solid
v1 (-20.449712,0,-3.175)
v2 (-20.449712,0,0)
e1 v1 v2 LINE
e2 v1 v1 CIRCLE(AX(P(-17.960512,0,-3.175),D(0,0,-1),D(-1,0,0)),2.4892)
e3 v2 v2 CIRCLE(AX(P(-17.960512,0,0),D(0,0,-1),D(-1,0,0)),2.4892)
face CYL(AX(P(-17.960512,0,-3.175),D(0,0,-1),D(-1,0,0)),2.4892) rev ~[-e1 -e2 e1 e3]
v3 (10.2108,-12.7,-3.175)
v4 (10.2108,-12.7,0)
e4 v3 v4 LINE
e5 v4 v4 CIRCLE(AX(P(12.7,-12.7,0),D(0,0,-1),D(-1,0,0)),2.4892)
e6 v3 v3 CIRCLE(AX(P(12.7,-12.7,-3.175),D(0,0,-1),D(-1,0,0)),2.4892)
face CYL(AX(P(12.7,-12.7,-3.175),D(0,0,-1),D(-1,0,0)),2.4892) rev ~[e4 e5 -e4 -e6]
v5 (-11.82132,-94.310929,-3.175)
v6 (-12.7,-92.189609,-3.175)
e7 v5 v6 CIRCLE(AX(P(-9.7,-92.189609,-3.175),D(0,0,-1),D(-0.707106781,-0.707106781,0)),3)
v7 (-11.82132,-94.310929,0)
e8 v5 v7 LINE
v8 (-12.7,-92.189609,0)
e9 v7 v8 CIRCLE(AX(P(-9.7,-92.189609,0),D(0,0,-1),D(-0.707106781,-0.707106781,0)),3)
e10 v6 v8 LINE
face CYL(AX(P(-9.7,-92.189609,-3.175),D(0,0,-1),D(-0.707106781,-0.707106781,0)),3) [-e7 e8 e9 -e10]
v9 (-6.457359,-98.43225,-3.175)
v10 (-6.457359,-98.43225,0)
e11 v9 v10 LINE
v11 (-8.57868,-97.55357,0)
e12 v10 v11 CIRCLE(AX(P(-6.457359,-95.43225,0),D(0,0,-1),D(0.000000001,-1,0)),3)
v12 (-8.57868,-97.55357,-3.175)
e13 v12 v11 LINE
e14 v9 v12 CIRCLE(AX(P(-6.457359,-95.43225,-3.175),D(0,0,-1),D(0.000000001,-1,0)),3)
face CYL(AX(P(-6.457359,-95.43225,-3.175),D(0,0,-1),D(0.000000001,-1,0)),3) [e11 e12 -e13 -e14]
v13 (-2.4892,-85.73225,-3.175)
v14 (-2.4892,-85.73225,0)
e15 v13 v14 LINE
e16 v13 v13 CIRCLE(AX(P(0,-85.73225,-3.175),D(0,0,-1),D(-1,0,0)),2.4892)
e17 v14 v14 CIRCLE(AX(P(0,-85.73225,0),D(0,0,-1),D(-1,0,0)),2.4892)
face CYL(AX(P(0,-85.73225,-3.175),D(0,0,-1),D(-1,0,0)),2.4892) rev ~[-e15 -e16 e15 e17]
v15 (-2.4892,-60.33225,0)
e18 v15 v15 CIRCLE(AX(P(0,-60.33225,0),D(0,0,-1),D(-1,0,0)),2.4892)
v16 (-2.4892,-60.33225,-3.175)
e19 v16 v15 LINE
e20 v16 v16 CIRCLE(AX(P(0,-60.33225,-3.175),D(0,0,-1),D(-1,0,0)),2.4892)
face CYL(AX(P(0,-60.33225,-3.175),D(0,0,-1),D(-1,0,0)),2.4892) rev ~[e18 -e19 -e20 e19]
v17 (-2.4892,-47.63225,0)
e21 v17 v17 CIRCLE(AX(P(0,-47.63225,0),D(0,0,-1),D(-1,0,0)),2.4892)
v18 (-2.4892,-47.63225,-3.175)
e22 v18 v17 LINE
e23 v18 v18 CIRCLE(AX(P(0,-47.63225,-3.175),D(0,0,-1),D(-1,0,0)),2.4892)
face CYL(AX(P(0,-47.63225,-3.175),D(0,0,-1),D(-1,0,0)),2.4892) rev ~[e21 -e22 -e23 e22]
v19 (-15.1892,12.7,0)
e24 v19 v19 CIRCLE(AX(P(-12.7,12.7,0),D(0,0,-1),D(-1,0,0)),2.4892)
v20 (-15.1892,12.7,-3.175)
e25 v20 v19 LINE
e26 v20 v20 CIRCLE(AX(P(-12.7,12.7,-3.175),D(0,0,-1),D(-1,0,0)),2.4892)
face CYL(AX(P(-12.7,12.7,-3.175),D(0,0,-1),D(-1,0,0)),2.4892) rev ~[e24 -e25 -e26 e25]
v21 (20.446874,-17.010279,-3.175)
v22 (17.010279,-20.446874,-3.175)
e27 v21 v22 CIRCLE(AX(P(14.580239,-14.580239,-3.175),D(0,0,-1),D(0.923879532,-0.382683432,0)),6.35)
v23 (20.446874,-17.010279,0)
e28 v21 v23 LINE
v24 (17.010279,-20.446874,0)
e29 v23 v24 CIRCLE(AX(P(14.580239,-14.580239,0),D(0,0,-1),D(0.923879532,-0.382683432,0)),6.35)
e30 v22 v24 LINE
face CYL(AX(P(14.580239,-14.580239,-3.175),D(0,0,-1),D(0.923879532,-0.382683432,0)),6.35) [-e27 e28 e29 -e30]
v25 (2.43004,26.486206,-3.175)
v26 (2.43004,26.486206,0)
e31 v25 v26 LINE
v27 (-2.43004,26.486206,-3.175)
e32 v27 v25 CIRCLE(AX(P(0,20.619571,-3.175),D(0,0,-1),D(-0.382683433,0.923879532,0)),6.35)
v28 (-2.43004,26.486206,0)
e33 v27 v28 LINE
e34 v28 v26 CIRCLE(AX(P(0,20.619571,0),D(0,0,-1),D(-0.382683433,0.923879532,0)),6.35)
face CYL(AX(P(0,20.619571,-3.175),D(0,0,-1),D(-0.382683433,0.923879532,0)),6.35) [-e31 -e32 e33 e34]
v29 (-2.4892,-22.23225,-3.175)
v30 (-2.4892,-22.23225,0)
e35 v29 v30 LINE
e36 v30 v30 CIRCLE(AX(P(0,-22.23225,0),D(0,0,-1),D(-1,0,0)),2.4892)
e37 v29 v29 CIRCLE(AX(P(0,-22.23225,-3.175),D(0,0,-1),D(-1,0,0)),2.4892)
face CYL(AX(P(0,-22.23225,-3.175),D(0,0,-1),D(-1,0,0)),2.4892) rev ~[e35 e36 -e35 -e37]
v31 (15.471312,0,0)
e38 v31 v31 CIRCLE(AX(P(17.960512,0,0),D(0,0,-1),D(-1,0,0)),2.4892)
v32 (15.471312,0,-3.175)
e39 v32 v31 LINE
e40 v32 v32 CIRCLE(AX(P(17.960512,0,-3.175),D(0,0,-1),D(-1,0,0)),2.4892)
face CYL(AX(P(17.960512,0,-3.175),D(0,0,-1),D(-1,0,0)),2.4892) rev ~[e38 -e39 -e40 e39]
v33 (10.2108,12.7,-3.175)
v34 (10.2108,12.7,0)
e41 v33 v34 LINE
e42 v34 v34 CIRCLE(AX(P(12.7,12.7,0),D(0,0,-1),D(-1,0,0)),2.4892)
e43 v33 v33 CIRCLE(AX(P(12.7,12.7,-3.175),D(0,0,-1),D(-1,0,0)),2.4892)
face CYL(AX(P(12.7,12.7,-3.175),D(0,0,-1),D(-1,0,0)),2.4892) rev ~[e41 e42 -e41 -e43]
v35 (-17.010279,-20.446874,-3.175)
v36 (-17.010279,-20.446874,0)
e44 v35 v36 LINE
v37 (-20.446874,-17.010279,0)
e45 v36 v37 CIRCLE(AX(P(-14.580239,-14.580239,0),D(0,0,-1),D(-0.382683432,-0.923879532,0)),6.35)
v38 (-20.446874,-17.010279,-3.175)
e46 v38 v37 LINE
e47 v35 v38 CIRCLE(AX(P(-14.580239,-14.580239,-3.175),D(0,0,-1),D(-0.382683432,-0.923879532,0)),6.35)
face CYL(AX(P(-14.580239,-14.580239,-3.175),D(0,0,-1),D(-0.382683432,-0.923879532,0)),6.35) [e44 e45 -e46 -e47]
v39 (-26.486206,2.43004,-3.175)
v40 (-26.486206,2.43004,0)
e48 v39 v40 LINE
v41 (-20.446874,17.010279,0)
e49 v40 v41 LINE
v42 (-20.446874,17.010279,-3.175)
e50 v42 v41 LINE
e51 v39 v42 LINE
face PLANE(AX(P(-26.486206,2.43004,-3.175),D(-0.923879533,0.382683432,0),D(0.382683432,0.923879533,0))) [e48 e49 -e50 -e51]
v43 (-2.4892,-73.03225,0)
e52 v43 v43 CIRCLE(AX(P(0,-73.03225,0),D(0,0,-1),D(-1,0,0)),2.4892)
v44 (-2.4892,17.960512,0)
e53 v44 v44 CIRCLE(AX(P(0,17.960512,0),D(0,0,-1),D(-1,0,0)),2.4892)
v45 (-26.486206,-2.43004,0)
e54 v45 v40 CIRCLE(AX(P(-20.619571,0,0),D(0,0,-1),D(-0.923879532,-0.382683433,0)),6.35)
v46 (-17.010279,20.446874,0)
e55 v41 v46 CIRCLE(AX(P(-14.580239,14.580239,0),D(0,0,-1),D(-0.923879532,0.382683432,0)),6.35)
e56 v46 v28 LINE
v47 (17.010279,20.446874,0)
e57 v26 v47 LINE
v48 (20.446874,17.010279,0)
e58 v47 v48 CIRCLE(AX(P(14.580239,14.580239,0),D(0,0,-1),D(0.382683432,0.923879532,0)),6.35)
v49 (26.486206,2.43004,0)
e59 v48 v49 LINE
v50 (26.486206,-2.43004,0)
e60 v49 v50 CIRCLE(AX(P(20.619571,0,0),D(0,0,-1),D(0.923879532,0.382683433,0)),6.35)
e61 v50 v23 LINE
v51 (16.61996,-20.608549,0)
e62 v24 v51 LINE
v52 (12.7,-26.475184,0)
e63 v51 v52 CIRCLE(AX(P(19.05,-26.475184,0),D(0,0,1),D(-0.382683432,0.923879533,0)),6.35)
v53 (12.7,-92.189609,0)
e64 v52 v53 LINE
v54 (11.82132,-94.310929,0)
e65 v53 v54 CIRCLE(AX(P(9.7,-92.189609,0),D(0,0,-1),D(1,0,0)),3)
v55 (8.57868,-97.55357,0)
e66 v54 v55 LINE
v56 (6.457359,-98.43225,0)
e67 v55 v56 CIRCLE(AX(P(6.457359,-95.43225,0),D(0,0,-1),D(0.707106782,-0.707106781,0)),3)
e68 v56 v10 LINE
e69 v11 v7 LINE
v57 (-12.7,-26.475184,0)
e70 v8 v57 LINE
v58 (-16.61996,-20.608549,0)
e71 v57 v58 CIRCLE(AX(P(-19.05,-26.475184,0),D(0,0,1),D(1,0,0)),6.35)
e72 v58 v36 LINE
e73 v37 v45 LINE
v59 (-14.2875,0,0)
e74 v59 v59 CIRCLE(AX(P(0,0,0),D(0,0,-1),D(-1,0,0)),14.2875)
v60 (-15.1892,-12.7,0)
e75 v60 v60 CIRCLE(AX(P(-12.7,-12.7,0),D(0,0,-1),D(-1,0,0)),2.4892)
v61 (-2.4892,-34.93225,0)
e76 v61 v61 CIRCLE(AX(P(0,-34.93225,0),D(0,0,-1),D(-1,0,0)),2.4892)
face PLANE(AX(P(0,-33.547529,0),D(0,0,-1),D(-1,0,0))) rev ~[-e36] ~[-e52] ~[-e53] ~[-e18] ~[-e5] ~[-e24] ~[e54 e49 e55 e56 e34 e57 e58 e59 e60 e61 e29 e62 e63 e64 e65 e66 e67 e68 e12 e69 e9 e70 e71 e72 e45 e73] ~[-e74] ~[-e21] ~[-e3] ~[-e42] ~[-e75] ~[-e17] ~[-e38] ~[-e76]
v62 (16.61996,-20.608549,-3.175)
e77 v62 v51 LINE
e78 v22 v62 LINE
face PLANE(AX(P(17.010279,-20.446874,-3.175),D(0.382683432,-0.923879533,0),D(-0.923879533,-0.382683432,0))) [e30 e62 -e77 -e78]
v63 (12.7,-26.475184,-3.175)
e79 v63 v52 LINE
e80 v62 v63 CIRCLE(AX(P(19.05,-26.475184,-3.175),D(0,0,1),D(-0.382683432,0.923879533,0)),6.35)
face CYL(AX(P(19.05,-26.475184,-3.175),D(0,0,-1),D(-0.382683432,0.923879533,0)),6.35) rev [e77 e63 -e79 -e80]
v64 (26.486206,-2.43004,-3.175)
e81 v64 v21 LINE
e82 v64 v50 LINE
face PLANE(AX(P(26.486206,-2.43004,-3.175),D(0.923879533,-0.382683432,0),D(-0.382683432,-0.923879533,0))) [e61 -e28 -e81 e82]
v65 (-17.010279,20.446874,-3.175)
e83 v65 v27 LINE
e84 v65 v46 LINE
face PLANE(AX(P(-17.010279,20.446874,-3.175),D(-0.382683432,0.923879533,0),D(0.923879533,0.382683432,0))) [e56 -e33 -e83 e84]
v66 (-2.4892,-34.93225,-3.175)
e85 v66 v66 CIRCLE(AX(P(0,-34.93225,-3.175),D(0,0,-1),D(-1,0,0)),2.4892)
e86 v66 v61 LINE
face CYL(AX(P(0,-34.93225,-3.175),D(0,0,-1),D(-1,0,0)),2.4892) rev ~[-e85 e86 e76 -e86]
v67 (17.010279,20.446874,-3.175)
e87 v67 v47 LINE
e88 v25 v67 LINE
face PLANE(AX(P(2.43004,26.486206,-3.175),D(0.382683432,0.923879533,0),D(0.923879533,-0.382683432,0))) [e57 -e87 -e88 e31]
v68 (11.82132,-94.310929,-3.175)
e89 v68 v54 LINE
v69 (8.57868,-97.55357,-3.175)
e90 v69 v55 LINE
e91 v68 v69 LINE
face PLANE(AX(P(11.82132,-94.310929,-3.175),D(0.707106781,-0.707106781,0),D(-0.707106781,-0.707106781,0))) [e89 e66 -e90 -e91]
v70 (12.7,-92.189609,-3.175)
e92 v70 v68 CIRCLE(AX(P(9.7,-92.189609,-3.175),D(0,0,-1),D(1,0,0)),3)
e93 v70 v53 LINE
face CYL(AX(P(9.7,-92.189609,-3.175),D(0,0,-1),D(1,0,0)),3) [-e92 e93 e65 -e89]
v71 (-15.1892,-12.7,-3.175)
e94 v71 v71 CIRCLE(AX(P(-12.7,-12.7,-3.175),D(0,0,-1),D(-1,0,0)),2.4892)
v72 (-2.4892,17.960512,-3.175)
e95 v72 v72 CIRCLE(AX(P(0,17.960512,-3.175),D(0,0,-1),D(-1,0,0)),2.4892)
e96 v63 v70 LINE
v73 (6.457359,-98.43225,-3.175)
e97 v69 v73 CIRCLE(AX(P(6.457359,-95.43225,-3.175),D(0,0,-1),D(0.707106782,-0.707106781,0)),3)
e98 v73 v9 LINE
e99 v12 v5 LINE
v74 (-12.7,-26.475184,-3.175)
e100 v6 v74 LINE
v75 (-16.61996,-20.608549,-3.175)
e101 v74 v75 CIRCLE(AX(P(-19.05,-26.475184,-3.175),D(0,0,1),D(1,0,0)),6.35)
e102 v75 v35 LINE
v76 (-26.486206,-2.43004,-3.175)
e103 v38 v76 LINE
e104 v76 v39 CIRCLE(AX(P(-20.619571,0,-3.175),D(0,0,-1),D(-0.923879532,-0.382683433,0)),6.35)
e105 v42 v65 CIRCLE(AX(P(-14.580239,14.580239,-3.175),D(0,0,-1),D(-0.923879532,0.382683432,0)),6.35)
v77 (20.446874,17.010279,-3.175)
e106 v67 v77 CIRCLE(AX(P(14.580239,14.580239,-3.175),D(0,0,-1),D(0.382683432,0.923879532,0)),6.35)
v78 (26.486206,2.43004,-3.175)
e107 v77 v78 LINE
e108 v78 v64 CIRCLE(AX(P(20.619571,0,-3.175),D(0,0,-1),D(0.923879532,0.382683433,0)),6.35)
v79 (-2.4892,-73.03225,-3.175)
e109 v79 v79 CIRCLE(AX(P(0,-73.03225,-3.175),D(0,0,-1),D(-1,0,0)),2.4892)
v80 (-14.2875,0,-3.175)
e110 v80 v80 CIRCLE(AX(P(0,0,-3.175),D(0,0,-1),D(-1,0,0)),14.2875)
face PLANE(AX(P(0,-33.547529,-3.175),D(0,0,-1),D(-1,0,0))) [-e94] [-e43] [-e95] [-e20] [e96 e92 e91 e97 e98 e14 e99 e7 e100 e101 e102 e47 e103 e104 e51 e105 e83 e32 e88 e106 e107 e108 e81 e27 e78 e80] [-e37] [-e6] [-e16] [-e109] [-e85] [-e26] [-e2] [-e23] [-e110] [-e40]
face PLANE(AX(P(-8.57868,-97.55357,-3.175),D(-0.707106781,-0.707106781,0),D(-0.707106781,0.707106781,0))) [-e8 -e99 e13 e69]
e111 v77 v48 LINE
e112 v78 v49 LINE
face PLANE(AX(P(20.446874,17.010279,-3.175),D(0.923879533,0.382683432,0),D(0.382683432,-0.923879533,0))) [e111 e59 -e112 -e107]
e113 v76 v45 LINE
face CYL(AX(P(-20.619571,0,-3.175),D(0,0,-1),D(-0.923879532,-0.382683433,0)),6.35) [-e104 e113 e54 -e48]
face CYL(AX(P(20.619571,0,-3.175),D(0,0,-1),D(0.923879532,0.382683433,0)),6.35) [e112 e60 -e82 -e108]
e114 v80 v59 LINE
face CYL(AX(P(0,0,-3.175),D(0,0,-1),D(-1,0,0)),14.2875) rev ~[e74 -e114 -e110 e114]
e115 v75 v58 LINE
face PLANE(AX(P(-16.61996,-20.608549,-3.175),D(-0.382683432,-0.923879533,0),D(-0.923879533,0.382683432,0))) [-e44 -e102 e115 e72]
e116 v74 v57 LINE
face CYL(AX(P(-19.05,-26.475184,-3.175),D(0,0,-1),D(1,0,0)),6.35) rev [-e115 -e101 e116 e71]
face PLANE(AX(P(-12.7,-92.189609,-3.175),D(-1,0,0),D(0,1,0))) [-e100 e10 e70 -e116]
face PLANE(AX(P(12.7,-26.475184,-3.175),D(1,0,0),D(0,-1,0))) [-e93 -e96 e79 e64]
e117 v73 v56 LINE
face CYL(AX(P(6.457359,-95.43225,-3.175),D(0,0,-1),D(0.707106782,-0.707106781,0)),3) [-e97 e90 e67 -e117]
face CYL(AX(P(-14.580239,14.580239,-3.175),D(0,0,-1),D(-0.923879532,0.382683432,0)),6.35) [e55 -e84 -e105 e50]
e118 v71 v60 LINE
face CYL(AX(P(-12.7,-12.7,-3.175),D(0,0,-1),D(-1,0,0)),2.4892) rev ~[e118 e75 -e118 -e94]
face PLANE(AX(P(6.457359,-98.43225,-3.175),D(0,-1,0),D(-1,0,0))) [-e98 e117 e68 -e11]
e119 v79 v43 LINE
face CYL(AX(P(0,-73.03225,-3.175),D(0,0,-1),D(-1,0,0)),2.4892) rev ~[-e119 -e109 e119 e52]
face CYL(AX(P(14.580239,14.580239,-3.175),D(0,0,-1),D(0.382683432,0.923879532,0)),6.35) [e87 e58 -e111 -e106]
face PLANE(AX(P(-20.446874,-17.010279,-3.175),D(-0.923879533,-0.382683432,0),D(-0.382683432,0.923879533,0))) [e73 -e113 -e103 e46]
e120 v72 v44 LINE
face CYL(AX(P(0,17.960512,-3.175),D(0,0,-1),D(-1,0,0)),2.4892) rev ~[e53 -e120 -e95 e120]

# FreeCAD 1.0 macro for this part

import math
import FreeCAD as App
import Part
import Sketcher
from FreeCAD import Vector
Q = App.Units.Quantity

doc = App.newDocument("Part")
params = doc.addObject("Spreadsheet::Sheet", "Params")
for row, (alias, value) in enumerate([
    ("sketch1_radius", "0.25 in"),
    ("sketch1_diameter", "0.196 in"),
    ("sketch1_diameter2", "1.125 in"),
    ("pad1_length", "0.125 in"),
], start=1):
    params.set(f"A{row}", alias)
    params.set(f"B{row}", "=" + value)
    params.setAlias(f"B{row}", alias)

body = doc.addObject("PartDesign::Body", "Body")

sketch1 = body.newObject("Sketcher::SketchObject", "Sketch")
sketch1.AttachmentSupport = (doc.getObject("XY_Plane"), [""])
sketch1.MapMode = "FlatFace"
sketch1.AttachmentOffset = App.Placement(Vector(0, 0, -0.125 * 25.4), App.Rotation())
sketch1.addGeometry([
    Part.LineSegment(Vector(-8.57868, -97.55357, 0), Vector(-11.82132, -94.310929, 0)),
    Part.ArcOfCircle(Part.Circle(Vector(-9.7, -92.189609, 0), Vector(0, 0, 1), 3), math.radians(180), math.radians(225)),
    Part.LineSegment(Vector(-12.7, -92.189609, 0), Vector(-12.7, -26.475184, 0)),
    Part.ArcOfCircle(Part.Circle(Vector(-19.05, -26.475184, 0), Vector(0, 0, 1), 6.35), math.radians(0), math.radians(67.5)),
    Part.LineSegment(Vector(-16.61996, -20.608549, 0), Vector(-17.010279, -20.446874, 0)),
    Part.ArcOfCircle(Part.Circle(Vector(-14.580239, -14.580239, 0), Vector(0, 0, 1), 6.35), math.radians(-157.5), math.radians(-112.5)),
    Part.LineSegment(Vector(-20.446874, -17.010279, 0), Vector(-26.486206, -2.43004, 0)),
    Part.ArcOfCircle(Part.Circle(Vector(-20.619571, 0, 0), Vector(0, 0, 1), 6.35), math.radians(157.5), math.radians(202.5)),
    Part.LineSegment(Vector(-26.486206, 2.43004, 0), Vector(-20.446874, 17.010279, 0)),
    Part.ArcOfCircle(Part.Circle(Vector(-14.580239, 14.580239, 0), Vector(0, 0, 1), 6.35), math.radians(112.5), math.radians(157.5)),
    Part.LineSegment(Vector(-17.010279, 20.446874, 0), Vector(-2.43004, 26.486206, 0)),
    Part.ArcOfCircle(Part.Circle(Vector(0, 20.619571, 0), Vector(0, 0, 1), 6.35), math.radians(67.5), math.radians(112.5)),
    Part.LineSegment(Vector(2.43004, 26.486206, 0), Vector(17.010279, 20.446874, 0)),
    Part.ArcOfCircle(Part.Circle(Vector(14.580239, 14.580239, 0), Vector(0, 0, 1), 6.35), math.radians(22.5), math.radians(67.5)),
    Part.LineSegment(Vector(20.446874, 17.010279, 0), Vector(26.486206, 2.43004, 0)),
    Part.ArcOfCircle(Part.Circle(Vector(20.619571, 0, 0), Vector(0, 0, 1), 6.35), math.radians(-22.5), math.radians(22.5)),
    Part.LineSegment(Vector(26.486206, -2.43004, 0), Vector(20.446874, -17.010279, 0)),
    Part.ArcOfCircle(Part.Circle(Vector(14.580239, -14.580239, 0), Vector(0, 0, 1), 6.35), math.radians(-67.5), math.radians(-22.5)),
    Part.LineSegment(Vector(17.010279, -20.446874, 0), Vector(16.61996, -20.608549, 0)),
    Part.ArcOfCircle(Part.Circle(Vector(19.05, -26.475184, 0), Vector(0, 0, 1), 6.35), math.radians(112.5), math.radians(180)),
    Part.LineSegment(Vector(12.7, -26.475184, 0), Vector(12.7, -92.189609, 0)),
    Part.ArcOfCircle(Part.Circle(Vector(9.7, -92.189609, 0), Vector(0, 0, 1), 3), math.radians(-45), math.radians(0)),
    Part.LineSegment(Vector(11.82132, -94.310929, 0), Vector(8.57868, -97.55357, 0)),
    Part.ArcOfCircle(Part.Circle(Vector(6.457359, -95.43225, 0), Vector(0, 0, 1), 3), math.radians(-90), math.radians(-45)),
    Part.LineSegment(Vector(6.457359, -98.43225, 0), Vector(-6.457359, -98.43225, 0)),
    Part.ArcOfCircle(Part.Circle(Vector(-6.457359, -95.43225, 0), Vector(0, 0, 1), 3), math.radians(-135), math.radians(-90)),
    Part.Circle(Vector(0, -85.73225, 0), Vector(0, 0, 1), 2.4892),
    Part.Circle(Vector(0, -73.03225, 0), Vector(0, 0, 1), 2.4892),
    Part.Circle(Vector(0, -60.33225, 0), Vector(0, 0, 1), 2.4892),
    Part.Circle(Vector(0, -47.63225, 0), Vector(0, 0, 1), 2.4892),
    Part.Circle(Vector(0, -34.93225, 0), Vector(0, 0, 1), 2.4892),
    Part.Circle(Vector(12.7, -12.7, 0), Vector(0, 0, 1), 2.4892),
    Part.Circle(Vector(17.960512, 0, 0), Vector(0, 0, 1), 2.4892),
    Part.Circle(Vector(12.7, 12.7, 0), Vector(0, 0, 1), 2.4892),
    Part.Circle(Vector(0, -22.23225, 0), Vector(0, 0, 1), 2.4892),
    Part.Circle(Vector(-12.7, -12.7, 0), Vector(0, 0, 1), 2.4892),
    Part.Circle(Vector(0, 0, 0), Vector(0, 0, 1), 14.2875),
    Part.Circle(Vector(0, 17.960512, 0), Vector(0, 0, 1), 2.4892),
    Part.Circle(Vector(-17.960512, 0, 0), Vector(0, 0, 1), 2.4892),
    Part.Circle(Vector(-12.7, 12.7, 0), Vector(0, 0, 1), 2.4892),
], False)
sketch1.addConstraint([
    Sketcher.Constraint("Tangent", 0, 2, 1, 2),
    Sketcher.Constraint("Tangent", 1, 1, 2, 1),
    Sketcher.Constraint("Tangent", 2, 2, 3, 1),
    Sketcher.Constraint("Tangent", 3, 2, 4, 1),
    Sketcher.Constraint("Tangent", 4, 2, 5, 2),
    Sketcher.Constraint("Tangent", 5, 1, 6, 1),
    Sketcher.Constraint("Tangent", 6, 2, 7, 2),
    Sketcher.Constraint("Tangent", 7, 1, 8, 1),
    Sketcher.Constraint("Tangent", 8, 2, 9, 2),
    Sketcher.Constraint("Tangent", 9, 1, 10, 1),
    Sketcher.Constraint("Tangent", 10, 2, 11, 2),
    Sketcher.Constraint("Tangent", 11, 1, 12, 1),
    Sketcher.Constraint("Tangent", 12, 2, 13, 2),
    Sketcher.Constraint("Tangent", 13, 1, 14, 1),
    Sketcher.Constraint("Tangent", 14, 2, 15, 2),
    Sketcher.Constraint("Tangent", 15, 1, 16, 1),
    Sketcher.Constraint("Tangent", 16, 2, 17, 2),
    Sketcher.Constraint("Tangent", 17, 1, 18, 1),
    Sketcher.Constraint("Tangent", 18, 2, 19, 1),
    Sketcher.Constraint("Tangent", 19, 2, 20, 1),
    Sketcher.Constraint("Tangent", 20, 2, 21, 2),
    Sketcher.Constraint("Tangent", 21, 1, 22, 1),
    Sketcher.Constraint("Tangent", 22, 2, 23, 2),
    Sketcher.Constraint("Tangent", 23, 1, 24, 1),
    Sketcher.Constraint("Tangent", 24, 2, 25, 2),
    Sketcher.Constraint("Tangent", 25, 1, 0, 1),
    Sketcher.Constraint("Vertical", 2),
    Sketcher.Constraint("Vertical", 20),
    Sketcher.Constraint("Horizontal", 24),
    Sketcher.Constraint("Coincident", 36, 3, -1, 1),
    Sketcher.Constraint("Equal", 3, 5),
    Sketcher.Constraint("Equal", 5, 7),
    Sketcher.Constraint("Equal", 7, 9),
    Sketcher.Constraint("Equal", 9, 11),
    Sketcher.Constraint("Equal", 11, 13),
    Sketcher.Constraint("Equal", 13, 15),
    Sketcher.Constraint("Equal", 15, 17),
    Sketcher.Constraint("Equal", 17, 19),
    Sketcher.Constraint("Equal", 1, 21),
    Sketcher.Constraint("Equal", 21, 23),
    Sketcher.Constraint("Equal", 23, 25),
    Sketcher.Constraint("Equal", 26, 27),
    Sketcher.Constraint("Equal", 27, 28),
    Sketcher.Constraint("Equal", 28, 29),
    Sketcher.Constraint("Equal", 29, 30),
    Sketcher.Constraint("Equal", 30, 31),
    Sketcher.Constraint("Equal", 31, 32),
    Sketcher.Constraint("Equal", 32, 33),
    Sketcher.Constraint("Equal", 33, 34),
    Sketcher.Constraint("Equal", 34, 35),
    Sketcher.Constraint("Equal", 35, 37),
    Sketcher.Constraint("Equal", 37, 38),
    Sketcher.Constraint("Equal", 38, 39),
    Sketcher.Constraint("Symmetric", 5, 3, 13, 3, -1, 1),
    Sketcher.Constraint("Symmetric", 7, 3, 15, 3, -1, 1),
    Sketcher.Constraint("Symmetric", 9, 3, 17, 3, -1, 1),
    Sketcher.Constraint("Symmetric", 33, 3, 35, 3, -1, 1),
    Sketcher.Constraint("Symmetric", 32, 3, 38, 3, -1, 1),
    Sketcher.Constraint("Symmetric", 31, 3, 39, 3, -1, 1),
    Sketcher.Constraint("Symmetric", 9, 3, 13, 3, -2),
    Sketcher.Constraint("Symmetric", 3, 3, 19, 3, -2),
    Sketcher.Constraint("Symmetric", 31, 3, 35, 3, -2),
    Sketcher.Constraint("Symmetric", 0, 2, 21, 1, -2),
    Sketcher.Constraint("PointOnObject", 7, 3, -1),
    Sketcher.Constraint("PointOnObject", 11, 3, -2),
    Sketcher.Constraint("PointOnObject", 26, 3, -2),
    Sketcher.Constraint("PointOnObject", 27, 3, -2),
    Sketcher.Constraint("PointOnObject", 28, 3, -2),
    Sketcher.Constraint("PointOnObject", 29, 3, -2),
    Sketcher.Constraint("PointOnObject", 30, 3, -2),
    Sketcher.Constraint("PointOnObject", 32, 3, -1),
    Sketcher.Constraint("PointOnObject", 34, 3, -2),
    Sketcher.Constraint("PointOnObject", 37, 3, -2),
    Sketcher.Constraint("Perpendicular", 4, 8),
    Sketcher.Constraint("Perpendicular", 6, 10),
    Sketcher.Constraint("Perpendicular", 0, 22),
    Sketcher.Constraint("Vertical", 39, 3, 1, 1),
    Sketcher.Constraint("Equal", 8, 10),
    Sketcher.Constraint("Radius", 3, Q("0.25 in")),
    Sketcher.Constraint("Diameter", 26, Q("0.196 in")),
    Sketcher.Constraint("Diameter", 36, Q("1.125 in")),
    Sketcher.Constraint("DistanceY", 26, 3, 28, 3, Q("1 in")),
    Sketcher.Constraint("DistanceY", 27, 3, 29, 3, Q("1 in")),
    Sketcher.Constraint("DistanceY", 31, 3, 33, 3, Q("1 in")),
    Sketcher.Constraint("DistanceX", 35, 3, 31, 3, Q("1 in")),
    Sketcher.Constraint("Angle", 4, Q("157.5 deg")),
    Sketcher.Constraint("DistanceY", 26, 3, 27, 3, Q("0.5 in")),
    Sketcher.Constraint("DistanceY", 29, 3, 30, 3, Q("0.5 in")),
    Sketcher.Constraint("DistanceY", 30, 3, 34, 3, Q("0.5 in")),
    Sketcher.Constraint("Radius", 1, 3.0),
    Sketcher.Constraint("DistanceX", 24, 2, 24, 1, 12.914719),
    Sketcher.Constraint("DistanceY", 23, 3, 26, 3, 9.7),
    Sketcher.Constraint("DistanceY", 34, 3, 3, 2, 1.623701),
    Sketcher.Constraint("DistanceY", 5, 3, 6, 2, 12.150199),
    Sketcher.Constraint("DistanceX", 32, 3, 15, 3, 2.659059),
    Sketcher.Constraint("DistanceY", 37, 3, 11, 3, 2.659059),
])
sketch1.setExpression("Constraints[78]", "Params.sketch1_radius")
sketch1.setExpression("Constraints[79]", "Params.sketch1_diameter")
sketch1.setExpression("Constraints[80]", "Params.sketch1_diameter2")
pad1 = body.newObject("PartDesign::Pad", "Pad")
pad1.Profile = sketch1
pad1.setExpression("Length", "Params.pad1_length")

doc.recompute()
